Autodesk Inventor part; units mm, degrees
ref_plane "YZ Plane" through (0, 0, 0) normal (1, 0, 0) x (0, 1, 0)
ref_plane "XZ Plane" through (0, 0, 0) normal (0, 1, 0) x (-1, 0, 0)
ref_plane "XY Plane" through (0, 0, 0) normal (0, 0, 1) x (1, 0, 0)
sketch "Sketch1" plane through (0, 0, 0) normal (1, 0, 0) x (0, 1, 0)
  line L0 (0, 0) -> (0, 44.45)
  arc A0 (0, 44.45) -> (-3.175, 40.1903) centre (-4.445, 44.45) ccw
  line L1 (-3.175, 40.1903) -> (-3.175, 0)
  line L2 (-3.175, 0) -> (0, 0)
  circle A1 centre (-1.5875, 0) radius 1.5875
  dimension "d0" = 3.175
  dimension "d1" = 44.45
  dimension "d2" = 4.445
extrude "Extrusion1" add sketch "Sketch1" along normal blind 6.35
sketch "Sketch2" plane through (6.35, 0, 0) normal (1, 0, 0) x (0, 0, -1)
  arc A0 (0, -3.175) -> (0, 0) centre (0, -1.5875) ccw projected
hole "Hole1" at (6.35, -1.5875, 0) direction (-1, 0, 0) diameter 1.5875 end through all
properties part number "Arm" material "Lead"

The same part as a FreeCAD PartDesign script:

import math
import FreeCAD as App
import Part
import Sketcher
from FreeCAD import Vector
Q = App.Units.Quantity

doc = App.newDocument("Part")
body = doc.addObject("PartDesign::Body", "Body")

# Sketch on YZ plane
sketch1 = body.newObject("Sketcher::SketchObject", "Sketch")
sketch1.AttachmentSupport = (doc.getObject("YZ_Plane"), [""])
sketch1.MapMode = "FlatFace"
sketch1.addGeometry(Part.LineSegment(Vector(-3.2, 40.2, 0), Vector(-3.2, 0, 0)), False)
sketch1.addGeometry(Part.ArcOfCircle(Part.Circle(Vector(-1.6, 0, 0), Vector(0, 0, 1), 1.6), math.radians(180), math.radians(360)), False)
sketch1.addGeometry(Part.LineSegment(Vector(0, 0, 0), Vector(0, 44.5, 0)), False)
sketch1.addGeometry(Part.ArcOfCircle(Part.Circle(Vector(-4.4, 44.5, 0), Vector(0, 0, 1), 4.4), math.radians(0), math.radians(287)), False)
sketch1.addConstraint(Sketcher.Constraint("Tangent", 0, 2, 1, 1))
sketch1.addConstraint(Sketcher.Constraint("Tangent", 1, 2, 2, 1))
sketch1.addConstraint(Sketcher.Constraint("Tangent", 2, 2, 3, 1))
sketch1.addConstraint(Sketcher.Constraint("Coincident", 3, 2, 0, 1))
sketch1.addConstraint(Sketcher.Constraint("Vertical", 0))
sketch1.addConstraint(Sketcher.Constraint("Vertical", 2))
sketch1.addConstraint(Sketcher.Constraint("Coincident", 1, 2, -1, 1))
sketch1.addConstraint(Sketcher.Constraint("Radius", 1, Q("0.0625 in")))
sketch1.addConstraint(Sketcher.Constraint("Radius", 3, Q("0.175 in")))
sketch1.addConstraint(Sketcher.Constraint("DistanceY", 2, 1, 2, 2, Q("1.75 in")))
pad1 = body.newObject("PartDesign::Pad", "Pad")
pad1.Profile = sketch1
pad1.Length = Q("0.25 in")

# Sketch on YZ plane
sketch2 = body.newObject("Sketcher::SketchObject", "Sketch001")
sketch2.AttachmentSupport = (doc.getObject("YZ_Plane"), [""])
sketch2.MapMode = "FlatFace"
sketch2.AttachmentOffset = App.Placement(Vector(0, 0, 0.25 * 25.4), App.Rotation())
sketch2.addGeometry(Part.Circle(Vector(-1.6, 0, 0), Vector(0, 0, 1), 0.8), False)
sketch2.addConstraint(Sketcher.Constraint("PointOnObject", 0, 3, -1))
sketch2.addConstraint(Sketcher.Constraint("Diameter", 0, Q("0.0625 in")))
sketch2.addConstraint(Sketcher.Constraint("DistanceX", 0, 3, -1, 1, Q("0.0625 in")))
doc.recompute()
hole = body.newObject("PartDesign::Hole", "Hole")
hole.Profile = sketch2
hole.ThreadType = "None"
hole.Diameter = Q("0.0625 in")
hole.DepthType = "ThroughAll"

doc.recompute()
